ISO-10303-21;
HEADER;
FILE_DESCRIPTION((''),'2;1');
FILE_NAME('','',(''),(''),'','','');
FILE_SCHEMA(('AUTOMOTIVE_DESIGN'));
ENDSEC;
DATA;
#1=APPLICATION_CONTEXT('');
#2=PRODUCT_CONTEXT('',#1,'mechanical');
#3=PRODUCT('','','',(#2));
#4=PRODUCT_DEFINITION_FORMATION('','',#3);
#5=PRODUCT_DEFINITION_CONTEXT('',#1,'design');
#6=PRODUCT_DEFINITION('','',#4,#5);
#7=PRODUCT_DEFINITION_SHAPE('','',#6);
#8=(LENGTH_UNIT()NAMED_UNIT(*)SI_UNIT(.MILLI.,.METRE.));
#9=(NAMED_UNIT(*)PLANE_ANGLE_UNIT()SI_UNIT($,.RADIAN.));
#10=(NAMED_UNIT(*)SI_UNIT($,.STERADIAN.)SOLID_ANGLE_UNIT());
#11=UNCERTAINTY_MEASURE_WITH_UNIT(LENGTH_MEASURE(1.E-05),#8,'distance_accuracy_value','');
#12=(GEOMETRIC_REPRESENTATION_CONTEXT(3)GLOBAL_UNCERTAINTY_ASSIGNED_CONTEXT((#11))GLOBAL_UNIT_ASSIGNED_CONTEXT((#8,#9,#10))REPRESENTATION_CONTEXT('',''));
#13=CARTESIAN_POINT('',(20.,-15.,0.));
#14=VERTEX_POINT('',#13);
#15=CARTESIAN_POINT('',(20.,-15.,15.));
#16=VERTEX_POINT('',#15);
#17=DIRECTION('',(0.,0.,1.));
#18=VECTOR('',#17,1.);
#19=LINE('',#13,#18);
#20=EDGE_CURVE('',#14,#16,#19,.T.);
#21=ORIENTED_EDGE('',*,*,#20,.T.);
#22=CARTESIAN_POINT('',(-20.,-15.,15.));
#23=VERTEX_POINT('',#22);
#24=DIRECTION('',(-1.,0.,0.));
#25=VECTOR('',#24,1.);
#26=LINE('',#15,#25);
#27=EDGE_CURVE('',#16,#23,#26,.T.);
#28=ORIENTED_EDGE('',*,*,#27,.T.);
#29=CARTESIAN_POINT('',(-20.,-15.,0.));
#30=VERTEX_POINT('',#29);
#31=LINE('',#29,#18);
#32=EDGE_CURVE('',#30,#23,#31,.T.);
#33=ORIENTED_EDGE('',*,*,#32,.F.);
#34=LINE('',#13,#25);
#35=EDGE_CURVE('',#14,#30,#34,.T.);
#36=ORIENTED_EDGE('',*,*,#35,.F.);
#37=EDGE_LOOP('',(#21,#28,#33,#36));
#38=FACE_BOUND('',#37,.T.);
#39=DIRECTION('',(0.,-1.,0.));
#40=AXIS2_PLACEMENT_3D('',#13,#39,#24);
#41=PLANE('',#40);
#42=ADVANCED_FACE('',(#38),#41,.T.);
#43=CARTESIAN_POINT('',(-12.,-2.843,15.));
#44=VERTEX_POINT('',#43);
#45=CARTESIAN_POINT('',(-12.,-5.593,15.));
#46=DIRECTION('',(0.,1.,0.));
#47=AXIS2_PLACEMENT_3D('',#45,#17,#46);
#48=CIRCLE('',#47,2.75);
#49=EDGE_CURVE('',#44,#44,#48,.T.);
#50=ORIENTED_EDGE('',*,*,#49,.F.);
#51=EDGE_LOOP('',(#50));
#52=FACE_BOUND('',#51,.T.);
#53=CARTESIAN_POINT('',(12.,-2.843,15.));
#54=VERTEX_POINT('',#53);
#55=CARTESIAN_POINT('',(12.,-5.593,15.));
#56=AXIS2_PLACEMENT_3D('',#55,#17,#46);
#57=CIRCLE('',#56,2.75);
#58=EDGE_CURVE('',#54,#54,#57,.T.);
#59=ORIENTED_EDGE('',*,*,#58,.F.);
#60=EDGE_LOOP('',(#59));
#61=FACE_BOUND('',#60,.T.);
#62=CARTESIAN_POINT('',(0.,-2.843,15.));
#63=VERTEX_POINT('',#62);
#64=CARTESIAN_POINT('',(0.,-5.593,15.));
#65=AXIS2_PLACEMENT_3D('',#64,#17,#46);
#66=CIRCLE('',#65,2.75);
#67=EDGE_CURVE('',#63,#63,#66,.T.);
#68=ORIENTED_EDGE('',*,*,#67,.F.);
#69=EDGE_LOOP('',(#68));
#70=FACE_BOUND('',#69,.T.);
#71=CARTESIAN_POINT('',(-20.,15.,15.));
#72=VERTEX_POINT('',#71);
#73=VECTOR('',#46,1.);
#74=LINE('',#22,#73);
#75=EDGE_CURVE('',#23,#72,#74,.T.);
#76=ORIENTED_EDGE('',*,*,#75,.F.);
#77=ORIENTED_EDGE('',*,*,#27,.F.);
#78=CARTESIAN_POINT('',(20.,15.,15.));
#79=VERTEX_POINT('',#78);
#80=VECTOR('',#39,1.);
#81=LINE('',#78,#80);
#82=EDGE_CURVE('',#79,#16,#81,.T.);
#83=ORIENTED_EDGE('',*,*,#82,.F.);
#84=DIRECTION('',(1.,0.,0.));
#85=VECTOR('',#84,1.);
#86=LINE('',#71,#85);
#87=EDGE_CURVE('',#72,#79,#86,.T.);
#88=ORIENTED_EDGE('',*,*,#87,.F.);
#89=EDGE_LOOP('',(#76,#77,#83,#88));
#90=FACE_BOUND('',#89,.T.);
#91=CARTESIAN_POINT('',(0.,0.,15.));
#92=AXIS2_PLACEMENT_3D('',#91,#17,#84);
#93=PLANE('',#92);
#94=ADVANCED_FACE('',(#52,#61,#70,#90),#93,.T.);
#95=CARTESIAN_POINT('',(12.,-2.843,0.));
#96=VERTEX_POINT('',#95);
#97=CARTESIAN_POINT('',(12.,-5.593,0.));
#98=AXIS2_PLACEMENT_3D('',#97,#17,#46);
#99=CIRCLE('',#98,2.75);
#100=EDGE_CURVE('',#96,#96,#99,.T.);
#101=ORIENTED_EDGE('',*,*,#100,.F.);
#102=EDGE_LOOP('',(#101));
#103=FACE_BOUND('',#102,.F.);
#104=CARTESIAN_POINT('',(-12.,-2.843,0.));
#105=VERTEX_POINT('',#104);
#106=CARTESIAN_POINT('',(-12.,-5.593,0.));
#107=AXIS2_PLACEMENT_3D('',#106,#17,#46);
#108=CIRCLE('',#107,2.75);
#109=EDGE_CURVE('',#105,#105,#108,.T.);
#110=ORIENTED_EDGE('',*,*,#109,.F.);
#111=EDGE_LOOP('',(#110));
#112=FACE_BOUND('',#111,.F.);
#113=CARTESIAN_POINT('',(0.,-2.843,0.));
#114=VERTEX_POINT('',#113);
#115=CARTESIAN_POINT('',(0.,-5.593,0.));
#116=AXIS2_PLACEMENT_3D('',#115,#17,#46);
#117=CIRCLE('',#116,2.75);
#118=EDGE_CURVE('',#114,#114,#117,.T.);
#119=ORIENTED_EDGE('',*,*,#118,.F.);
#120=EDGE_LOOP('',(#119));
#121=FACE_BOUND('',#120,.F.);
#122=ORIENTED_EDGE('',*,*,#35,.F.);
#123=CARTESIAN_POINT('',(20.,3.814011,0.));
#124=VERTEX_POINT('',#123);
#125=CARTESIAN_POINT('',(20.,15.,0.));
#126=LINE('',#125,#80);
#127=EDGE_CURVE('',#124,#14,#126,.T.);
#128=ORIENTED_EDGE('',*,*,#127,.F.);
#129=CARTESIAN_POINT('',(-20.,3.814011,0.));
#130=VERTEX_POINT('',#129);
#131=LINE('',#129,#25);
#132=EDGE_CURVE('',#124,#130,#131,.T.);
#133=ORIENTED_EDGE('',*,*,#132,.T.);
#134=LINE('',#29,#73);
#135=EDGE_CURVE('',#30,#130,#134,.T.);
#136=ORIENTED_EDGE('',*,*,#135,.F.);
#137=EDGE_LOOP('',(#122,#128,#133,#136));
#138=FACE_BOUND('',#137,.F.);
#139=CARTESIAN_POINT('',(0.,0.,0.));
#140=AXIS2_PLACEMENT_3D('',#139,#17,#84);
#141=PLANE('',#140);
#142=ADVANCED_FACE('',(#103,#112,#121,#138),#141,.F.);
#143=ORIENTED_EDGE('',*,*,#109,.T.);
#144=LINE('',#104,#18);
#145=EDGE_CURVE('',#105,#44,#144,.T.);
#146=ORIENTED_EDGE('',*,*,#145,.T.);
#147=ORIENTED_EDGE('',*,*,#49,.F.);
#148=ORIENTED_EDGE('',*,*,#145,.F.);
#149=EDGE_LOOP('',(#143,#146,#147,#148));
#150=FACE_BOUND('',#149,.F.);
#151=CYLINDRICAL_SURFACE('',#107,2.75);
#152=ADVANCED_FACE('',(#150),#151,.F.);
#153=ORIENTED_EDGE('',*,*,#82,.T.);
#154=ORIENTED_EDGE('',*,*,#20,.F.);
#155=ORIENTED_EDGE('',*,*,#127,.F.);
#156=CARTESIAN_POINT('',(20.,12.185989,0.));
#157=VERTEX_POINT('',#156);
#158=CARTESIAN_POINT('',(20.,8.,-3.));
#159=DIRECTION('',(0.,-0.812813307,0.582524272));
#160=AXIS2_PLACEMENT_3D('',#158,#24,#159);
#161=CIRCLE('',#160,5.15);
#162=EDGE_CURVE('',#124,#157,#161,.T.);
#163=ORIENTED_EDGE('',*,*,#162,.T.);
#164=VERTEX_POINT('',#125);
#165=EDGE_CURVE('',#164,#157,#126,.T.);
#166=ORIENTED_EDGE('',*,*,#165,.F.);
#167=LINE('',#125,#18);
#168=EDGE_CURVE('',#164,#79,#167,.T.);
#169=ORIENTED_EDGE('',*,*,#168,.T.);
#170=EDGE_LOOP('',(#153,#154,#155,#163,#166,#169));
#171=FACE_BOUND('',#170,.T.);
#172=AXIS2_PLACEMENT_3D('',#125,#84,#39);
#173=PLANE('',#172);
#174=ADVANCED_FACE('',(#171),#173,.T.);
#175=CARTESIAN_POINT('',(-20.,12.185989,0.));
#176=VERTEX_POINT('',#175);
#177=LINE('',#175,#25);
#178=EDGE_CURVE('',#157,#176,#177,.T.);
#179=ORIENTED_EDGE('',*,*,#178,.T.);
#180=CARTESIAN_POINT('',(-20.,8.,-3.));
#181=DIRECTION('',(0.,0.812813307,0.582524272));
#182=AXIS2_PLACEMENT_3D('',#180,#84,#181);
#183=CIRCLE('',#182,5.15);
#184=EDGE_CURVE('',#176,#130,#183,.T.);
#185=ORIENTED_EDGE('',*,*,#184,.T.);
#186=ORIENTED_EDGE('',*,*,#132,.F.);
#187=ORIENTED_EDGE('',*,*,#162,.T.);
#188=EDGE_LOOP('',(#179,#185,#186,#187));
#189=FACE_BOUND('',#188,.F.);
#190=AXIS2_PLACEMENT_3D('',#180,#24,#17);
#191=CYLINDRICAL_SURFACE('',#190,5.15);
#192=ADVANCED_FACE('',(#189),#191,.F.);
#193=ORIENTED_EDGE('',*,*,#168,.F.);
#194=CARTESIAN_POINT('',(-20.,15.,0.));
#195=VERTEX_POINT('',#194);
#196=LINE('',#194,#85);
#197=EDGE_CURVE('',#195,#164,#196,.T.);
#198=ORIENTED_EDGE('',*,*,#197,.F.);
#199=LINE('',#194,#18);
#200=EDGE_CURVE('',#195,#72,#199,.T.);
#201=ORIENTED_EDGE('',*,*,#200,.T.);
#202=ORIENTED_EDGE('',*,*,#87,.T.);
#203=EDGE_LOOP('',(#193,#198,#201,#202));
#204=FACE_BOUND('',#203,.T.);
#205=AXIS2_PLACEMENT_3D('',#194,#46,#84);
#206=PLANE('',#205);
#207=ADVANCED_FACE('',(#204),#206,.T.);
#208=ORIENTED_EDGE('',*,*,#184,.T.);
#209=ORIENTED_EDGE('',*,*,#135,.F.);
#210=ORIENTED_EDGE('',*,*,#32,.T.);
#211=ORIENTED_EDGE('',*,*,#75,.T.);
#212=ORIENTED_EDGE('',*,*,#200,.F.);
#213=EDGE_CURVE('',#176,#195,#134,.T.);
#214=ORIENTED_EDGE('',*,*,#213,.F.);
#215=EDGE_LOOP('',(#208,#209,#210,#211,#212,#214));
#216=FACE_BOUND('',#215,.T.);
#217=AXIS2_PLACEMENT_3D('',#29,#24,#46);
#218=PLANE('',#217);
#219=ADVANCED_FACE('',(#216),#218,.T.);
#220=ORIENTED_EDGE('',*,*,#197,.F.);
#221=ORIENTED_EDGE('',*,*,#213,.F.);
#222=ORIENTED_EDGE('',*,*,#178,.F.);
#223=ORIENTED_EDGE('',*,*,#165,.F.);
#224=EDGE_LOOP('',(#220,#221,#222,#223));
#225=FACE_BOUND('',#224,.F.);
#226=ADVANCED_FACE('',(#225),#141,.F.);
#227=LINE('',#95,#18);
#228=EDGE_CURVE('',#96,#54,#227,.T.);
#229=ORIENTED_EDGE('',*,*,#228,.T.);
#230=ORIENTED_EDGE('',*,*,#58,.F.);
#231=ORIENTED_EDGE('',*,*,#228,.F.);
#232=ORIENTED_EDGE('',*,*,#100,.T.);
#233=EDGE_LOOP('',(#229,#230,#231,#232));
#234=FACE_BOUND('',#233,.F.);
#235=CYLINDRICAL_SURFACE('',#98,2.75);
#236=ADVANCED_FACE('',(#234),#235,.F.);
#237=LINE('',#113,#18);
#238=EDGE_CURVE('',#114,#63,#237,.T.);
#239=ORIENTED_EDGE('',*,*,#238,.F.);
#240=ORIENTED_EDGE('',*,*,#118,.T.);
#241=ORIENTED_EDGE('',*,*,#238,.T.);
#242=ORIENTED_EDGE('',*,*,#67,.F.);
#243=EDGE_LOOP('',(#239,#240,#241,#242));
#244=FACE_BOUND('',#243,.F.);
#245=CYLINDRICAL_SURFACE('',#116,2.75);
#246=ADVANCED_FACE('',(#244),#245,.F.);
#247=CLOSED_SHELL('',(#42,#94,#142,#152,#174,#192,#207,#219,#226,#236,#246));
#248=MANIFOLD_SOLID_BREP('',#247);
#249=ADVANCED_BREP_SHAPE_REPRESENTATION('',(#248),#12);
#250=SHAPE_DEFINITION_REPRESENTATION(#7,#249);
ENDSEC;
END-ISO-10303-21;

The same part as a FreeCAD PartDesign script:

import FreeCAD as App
import Part
import Sketcher
from FreeCAD import Vector
Q = App.Units.Quantity

doc = App.newDocument("Part")
body = doc.addObject("PartDesign::Body", "Body")

sketch1 = body.newObject("Sketcher::SketchObject", "Sketch")
sketch1.AttachmentSupport = (doc.getObject("XY_Plane"), [""])
sketch1.MapMode = "FlatFace"
sketch1.addGeometry([
    Part.LineSegment(Vector(20, 15, 0), Vector(-20, 15, 0)),
    Part.LineSegment(Vector(-20, 15, 0), Vector(-20, -15, 0)),
    Part.LineSegment(Vector(-20, -15, 0), Vector(20, -15, 0)),
    Part.LineSegment(Vector(20, -15, 0), Vector(20, 15, 0)),
], False)
sketch1.addConstraint([
    Sketcher.Constraint("Coincident", 0, 2, 1, 1),
    Sketcher.Constraint("Coincident", 1, 2, 2, 1),
    Sketcher.Constraint("Coincident", 2, 2, 3, 1),
    Sketcher.Constraint("Coincident", 3, 2, 0, 1),
    Sketcher.Constraint("Horizontal", 0),
    Sketcher.Constraint("Vertical", 1),
    Sketcher.Constraint("Horizontal", 2),
    Sketcher.Constraint("Vertical", 3),
    Sketcher.Constraint("Symmetric", 0, 2, 2, 2, -1, 1),
    Sketcher.Constraint("DistanceX", 0, 2, 0, 1, Q("40 mm")),
    Sketcher.Constraint("DistanceY", 1, 2, 1, 1, Q("30 mm")),
])
pad1 = body.newObject("PartDesign::Pad", "Pad")
pad1.Profile = sketch1
pad1.Length = 15

sketch2 = body.newObject("Sketcher::SketchObject", "Sketch001")
sketch2.AttachmentSupport = (doc.getObject("YZ_Plane"), [""])
sketch2.MapMode = "FlatFace"
sketch2.AttachmentOffset = App.Placement(Vector(0, 0, -20), App.Rotation())
sketch2.addGeometry(Part.Circle(Vector(8, -3, 0), Vector(0, 0, 1), 5), False)
sketch2.addConstraint([
    Sketcher.Constraint("Diameter", 0, Q("10.3 mm")),
    Sketcher.Constraint("DistanceY", 0, 3, -1, 1, Q("3 mm")),
    Sketcher.Constraint("DistanceX", -1, 1, 0, 3, Q("8 mm")),
])
pocket1 = body.newObject("PartDesign::Pocket", "Pocket")
pocket1.Profile = sketch2
pocket1.Type = "ThroughAll"
pocket1.Reversed = True

sketch3 = body.newObject("Sketcher::SketchObject", "Sketch002")
sketch3.AttachmentSupport = (doc.getObject("XY_Plane"), [""])
sketch3.MapMode = "FlatFace"
sketch3.addGeometry([
    Part.Circle(Vector(12, -5.6, 0), Vector(0, 0, 1), 2.8),
    Part.Circle(Vector(0, -5.6, 0), Vector(0, 0, 1), 2.8),
    Part.Circle(Vector(-12, -5.6, 0), Vector(0, 0, 1), 2.8),
], False)
sketch3.addConstraint([
    Sketcher.Constraint("Equal", 0, 1),
    Sketcher.Constraint("Equal", 1, 2),
    Sketcher.Constraint("Symmetric", 0, 3, 2, 3, -2),
    Sketcher.Constraint("PointOnObject", 1, 3, -2),
    Sketcher.Constraint("Horizontal", 0, 3, 1, 3),
    Sketcher.Constraint("Diameter", 0, Q("5.5 mm")),
    Sketcher.Constraint("DistanceX", -1, 1, 0, 3, Q("12 mm")),
    Sketcher.Constraint("DistanceY", 0, 3, -1, 1, Q("5.593 mm")),
])
doc.recompute()
hole = body.newObject("PartDesign::Hole", "Hole")
hole.Profile = sketch3
hole.ThreadType = "None"
hole.Diameter = 5.5
hole.DepthType = "ThroughAll"
hole.Reversed = True

doc.recompute()
